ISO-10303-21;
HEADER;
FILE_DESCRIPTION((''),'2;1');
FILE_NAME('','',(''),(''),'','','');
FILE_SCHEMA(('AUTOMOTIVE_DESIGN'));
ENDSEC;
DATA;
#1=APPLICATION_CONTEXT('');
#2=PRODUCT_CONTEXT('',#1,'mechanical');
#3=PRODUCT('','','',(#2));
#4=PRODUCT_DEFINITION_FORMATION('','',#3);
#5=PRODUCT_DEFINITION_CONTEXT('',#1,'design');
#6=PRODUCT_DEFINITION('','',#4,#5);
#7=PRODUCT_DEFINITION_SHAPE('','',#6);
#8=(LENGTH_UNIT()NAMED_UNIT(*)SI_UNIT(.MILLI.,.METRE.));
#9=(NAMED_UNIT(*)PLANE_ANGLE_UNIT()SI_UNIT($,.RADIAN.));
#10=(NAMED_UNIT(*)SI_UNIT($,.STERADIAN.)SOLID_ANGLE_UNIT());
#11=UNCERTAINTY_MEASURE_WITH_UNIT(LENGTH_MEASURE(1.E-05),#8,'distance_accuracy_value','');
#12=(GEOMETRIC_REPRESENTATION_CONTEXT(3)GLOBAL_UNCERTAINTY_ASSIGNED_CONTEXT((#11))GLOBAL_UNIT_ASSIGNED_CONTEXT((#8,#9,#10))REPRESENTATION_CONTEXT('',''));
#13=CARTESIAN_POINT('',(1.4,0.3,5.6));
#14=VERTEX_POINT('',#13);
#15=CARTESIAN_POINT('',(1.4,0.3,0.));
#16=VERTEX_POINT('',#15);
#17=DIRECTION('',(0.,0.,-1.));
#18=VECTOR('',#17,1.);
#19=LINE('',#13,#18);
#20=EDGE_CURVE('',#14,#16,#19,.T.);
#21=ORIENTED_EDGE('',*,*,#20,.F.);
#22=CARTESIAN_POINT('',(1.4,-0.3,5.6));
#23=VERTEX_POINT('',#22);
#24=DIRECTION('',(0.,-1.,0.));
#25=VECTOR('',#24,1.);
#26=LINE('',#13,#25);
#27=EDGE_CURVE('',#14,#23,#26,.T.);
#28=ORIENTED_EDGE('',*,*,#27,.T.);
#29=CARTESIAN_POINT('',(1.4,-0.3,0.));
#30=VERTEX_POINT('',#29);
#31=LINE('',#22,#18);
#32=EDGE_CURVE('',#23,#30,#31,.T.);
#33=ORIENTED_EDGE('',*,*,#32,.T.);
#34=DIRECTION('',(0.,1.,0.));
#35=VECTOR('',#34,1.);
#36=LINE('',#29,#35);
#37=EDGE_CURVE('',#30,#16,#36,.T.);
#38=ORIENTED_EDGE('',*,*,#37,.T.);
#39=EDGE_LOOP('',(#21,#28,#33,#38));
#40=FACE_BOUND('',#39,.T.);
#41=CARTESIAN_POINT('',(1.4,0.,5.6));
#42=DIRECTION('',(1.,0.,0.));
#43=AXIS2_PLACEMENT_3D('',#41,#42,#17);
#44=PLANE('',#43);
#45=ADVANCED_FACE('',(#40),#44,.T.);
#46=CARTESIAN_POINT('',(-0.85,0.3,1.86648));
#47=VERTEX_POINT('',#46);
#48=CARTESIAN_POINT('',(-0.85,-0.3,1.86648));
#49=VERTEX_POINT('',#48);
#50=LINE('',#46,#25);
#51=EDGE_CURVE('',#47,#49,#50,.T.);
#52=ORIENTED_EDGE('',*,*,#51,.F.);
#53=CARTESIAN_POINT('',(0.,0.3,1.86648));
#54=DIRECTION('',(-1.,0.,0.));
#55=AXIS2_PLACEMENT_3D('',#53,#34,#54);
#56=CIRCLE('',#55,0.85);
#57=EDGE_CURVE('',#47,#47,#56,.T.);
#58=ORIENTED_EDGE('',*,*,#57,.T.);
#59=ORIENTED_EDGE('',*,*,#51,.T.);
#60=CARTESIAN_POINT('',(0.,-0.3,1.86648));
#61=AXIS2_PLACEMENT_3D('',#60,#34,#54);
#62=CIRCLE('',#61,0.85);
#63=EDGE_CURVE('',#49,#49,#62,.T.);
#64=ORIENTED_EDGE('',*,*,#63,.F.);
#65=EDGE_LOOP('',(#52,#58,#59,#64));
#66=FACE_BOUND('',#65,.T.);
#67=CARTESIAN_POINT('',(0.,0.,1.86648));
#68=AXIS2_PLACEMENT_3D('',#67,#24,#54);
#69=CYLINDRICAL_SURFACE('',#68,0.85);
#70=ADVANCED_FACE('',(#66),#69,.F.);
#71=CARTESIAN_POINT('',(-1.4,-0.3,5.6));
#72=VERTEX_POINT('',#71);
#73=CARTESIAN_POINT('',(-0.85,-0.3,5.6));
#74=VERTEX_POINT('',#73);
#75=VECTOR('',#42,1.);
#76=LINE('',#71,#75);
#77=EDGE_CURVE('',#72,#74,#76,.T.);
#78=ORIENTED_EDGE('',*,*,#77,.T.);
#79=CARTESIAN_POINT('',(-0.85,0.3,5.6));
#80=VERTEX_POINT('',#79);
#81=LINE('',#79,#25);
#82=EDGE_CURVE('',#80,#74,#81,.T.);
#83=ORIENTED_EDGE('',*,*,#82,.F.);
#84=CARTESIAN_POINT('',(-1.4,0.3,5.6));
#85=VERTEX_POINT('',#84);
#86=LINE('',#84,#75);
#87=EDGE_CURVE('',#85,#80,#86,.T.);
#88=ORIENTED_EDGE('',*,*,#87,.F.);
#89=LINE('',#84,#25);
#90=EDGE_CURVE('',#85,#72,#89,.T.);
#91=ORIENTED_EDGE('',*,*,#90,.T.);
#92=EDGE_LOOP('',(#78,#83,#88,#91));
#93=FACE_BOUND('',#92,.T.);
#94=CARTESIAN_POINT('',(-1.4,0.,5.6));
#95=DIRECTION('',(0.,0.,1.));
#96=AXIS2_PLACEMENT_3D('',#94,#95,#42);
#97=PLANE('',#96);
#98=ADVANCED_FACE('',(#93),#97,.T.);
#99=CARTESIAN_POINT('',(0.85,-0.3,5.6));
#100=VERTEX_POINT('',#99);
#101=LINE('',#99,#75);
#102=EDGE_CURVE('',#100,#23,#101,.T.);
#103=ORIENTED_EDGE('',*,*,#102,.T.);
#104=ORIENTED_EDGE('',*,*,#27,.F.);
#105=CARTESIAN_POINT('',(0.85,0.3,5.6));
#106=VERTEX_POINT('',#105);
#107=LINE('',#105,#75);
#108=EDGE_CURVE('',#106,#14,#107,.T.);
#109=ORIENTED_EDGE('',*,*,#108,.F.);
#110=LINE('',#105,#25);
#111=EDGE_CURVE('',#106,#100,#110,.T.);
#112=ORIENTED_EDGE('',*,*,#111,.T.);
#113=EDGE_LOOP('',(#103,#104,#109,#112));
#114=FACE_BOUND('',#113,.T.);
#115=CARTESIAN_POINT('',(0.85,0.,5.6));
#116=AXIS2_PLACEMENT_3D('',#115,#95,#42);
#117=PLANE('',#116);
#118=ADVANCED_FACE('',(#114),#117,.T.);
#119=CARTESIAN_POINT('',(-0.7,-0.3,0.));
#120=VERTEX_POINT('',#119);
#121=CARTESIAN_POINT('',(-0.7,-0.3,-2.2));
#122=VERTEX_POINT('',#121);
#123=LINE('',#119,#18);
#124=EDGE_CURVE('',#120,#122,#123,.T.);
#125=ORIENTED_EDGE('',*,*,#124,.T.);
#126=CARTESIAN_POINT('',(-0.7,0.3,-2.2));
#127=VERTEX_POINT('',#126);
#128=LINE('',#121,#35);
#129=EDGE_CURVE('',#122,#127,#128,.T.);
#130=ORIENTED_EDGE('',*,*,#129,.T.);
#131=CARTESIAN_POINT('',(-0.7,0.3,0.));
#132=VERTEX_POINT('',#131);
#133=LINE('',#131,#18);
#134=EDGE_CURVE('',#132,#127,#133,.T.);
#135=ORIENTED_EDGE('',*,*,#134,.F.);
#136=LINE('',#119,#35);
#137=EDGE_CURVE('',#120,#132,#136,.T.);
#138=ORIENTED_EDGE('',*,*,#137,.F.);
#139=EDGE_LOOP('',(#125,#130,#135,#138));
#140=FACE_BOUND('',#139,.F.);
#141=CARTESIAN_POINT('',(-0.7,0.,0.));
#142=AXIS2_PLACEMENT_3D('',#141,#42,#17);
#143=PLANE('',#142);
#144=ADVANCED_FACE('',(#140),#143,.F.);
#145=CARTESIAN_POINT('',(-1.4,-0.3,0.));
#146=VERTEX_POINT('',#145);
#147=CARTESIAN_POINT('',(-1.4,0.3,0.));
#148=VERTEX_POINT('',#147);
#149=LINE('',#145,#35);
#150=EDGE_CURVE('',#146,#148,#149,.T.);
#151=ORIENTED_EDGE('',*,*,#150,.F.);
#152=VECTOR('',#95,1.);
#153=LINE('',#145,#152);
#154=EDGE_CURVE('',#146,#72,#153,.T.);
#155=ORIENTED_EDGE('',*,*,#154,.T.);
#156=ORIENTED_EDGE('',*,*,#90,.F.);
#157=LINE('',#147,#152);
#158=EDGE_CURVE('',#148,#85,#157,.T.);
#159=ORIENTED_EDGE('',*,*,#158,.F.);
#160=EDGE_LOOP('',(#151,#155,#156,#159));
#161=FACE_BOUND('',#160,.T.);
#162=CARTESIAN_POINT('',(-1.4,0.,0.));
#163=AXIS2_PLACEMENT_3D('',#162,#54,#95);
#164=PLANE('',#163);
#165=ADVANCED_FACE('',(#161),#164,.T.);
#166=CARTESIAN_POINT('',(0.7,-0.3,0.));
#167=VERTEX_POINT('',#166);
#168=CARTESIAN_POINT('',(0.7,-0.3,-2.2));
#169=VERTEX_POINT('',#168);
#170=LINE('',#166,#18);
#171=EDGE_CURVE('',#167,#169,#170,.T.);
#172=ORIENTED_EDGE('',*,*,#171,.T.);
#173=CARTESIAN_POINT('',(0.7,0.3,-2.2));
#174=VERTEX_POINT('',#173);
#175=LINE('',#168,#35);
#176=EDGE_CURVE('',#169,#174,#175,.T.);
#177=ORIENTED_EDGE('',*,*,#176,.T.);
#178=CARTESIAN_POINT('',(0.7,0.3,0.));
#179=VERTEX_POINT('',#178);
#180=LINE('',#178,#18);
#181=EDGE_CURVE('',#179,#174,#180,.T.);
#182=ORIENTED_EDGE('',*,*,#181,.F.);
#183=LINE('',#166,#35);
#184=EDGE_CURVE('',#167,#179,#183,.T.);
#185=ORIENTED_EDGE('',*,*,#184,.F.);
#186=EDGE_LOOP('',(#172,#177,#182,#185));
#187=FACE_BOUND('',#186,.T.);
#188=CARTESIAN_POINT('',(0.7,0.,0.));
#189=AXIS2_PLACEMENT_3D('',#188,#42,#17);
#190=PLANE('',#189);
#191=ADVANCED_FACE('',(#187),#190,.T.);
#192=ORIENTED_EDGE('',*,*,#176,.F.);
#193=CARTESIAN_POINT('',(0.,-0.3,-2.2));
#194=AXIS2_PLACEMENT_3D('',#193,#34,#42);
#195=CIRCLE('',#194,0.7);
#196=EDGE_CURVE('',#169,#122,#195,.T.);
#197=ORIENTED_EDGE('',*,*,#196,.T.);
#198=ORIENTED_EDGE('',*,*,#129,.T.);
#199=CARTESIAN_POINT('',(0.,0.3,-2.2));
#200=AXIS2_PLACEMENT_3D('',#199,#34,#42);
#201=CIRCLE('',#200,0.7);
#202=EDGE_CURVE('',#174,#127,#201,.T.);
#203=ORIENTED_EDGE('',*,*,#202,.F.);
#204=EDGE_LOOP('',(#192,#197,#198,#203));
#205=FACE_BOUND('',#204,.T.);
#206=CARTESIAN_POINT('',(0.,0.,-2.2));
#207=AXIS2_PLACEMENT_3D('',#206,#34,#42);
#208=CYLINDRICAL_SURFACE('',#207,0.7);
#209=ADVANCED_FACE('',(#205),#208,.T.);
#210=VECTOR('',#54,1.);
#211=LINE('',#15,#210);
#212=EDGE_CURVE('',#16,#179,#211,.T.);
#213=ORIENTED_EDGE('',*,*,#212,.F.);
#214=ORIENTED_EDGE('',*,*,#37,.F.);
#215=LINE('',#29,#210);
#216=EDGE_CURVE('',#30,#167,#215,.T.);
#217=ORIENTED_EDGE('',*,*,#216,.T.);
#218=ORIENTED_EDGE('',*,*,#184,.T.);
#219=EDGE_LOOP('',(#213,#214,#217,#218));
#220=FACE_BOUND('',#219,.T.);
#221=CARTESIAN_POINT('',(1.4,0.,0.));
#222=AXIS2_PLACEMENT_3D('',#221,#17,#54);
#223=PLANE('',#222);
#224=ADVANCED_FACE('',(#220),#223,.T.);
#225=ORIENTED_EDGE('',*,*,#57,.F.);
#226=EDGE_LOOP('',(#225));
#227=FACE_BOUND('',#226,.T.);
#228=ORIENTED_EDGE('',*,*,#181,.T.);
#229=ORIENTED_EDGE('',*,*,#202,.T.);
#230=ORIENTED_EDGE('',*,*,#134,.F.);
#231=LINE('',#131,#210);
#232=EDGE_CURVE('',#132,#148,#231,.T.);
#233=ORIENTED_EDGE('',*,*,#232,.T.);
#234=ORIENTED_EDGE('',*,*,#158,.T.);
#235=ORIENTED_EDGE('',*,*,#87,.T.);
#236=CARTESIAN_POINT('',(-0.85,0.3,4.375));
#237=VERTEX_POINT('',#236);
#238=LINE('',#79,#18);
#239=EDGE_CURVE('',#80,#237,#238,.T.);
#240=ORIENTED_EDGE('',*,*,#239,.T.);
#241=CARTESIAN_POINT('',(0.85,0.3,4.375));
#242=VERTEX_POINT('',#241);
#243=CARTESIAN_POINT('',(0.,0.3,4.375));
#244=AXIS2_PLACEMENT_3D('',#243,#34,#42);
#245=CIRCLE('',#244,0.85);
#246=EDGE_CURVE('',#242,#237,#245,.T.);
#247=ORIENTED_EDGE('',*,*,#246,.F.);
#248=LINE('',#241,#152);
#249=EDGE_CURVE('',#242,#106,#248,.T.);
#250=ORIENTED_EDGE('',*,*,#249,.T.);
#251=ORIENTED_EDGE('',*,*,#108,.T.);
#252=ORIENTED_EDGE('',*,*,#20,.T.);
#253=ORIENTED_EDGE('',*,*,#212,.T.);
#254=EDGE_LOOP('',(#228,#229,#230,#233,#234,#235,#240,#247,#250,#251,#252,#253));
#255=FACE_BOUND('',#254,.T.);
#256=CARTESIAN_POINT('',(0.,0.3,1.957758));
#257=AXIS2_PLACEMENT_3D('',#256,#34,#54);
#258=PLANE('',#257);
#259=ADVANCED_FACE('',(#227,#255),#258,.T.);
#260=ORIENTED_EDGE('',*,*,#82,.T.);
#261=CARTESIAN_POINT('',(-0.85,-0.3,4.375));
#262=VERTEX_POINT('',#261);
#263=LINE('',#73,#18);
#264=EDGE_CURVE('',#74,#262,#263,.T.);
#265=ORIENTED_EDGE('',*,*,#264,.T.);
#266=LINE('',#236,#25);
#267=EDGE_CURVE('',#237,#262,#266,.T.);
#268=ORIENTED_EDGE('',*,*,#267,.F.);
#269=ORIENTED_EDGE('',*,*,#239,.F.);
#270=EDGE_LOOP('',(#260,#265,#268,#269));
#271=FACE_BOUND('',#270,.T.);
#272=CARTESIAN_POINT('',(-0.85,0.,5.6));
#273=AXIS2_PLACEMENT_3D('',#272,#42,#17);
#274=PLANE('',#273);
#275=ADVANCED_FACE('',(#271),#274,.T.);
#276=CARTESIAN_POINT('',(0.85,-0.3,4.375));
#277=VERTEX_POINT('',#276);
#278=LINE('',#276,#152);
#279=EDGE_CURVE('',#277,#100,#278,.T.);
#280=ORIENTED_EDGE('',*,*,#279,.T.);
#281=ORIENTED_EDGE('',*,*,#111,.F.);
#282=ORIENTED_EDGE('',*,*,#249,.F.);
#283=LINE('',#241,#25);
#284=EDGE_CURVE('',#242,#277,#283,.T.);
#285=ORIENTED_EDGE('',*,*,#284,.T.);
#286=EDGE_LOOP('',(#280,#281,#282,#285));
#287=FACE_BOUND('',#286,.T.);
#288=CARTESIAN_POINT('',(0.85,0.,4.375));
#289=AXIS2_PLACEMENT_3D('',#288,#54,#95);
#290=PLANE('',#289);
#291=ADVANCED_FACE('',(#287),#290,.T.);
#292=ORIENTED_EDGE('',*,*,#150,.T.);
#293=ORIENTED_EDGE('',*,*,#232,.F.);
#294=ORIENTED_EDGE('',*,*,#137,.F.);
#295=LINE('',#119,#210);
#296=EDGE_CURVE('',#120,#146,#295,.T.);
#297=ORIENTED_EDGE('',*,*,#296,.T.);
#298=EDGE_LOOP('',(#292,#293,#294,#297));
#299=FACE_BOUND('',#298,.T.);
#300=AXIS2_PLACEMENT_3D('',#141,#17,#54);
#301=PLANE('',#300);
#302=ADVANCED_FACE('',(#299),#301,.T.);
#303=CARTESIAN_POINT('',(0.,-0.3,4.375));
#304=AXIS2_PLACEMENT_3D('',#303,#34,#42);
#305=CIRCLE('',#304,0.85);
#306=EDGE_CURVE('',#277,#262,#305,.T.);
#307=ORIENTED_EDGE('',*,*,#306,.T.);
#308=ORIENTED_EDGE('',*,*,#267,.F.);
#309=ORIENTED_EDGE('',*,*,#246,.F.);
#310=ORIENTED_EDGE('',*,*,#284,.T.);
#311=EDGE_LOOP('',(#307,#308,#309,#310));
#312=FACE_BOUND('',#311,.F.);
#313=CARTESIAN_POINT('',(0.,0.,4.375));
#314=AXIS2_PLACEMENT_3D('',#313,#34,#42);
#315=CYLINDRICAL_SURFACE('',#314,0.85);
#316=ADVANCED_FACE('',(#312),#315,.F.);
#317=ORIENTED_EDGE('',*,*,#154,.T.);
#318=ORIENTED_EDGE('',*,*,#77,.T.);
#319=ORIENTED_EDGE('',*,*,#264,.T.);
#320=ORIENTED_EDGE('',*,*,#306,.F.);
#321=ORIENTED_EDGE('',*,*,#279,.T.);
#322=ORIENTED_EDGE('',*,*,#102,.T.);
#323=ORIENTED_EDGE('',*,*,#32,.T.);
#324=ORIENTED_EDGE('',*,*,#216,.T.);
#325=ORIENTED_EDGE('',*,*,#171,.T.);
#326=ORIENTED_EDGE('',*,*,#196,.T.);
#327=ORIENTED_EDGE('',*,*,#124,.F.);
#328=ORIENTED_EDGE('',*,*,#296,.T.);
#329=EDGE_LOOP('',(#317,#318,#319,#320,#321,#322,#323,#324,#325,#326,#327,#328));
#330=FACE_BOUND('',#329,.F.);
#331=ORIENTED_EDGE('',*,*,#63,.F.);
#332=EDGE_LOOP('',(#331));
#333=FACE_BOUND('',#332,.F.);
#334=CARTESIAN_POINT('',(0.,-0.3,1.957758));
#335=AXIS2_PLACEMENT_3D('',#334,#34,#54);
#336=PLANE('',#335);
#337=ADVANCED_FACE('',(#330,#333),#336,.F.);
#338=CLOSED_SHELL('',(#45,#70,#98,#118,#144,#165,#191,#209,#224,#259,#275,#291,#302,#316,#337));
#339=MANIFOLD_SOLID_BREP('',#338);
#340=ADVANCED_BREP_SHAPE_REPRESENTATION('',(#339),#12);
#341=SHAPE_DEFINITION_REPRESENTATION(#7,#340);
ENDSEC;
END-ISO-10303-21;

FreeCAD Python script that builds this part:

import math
import FreeCAD as App
import Part
import Sketcher

V = App.Vector
Q = App.Units.Quantity

doc = App.newDocument("Part")
body = doc.addObject("PartDesign::Body", "Body")

sketch1 = body.newObject("Sketcher::SketchObject", "Sketch")
sketch1.AttachmentSupport = (doc.getObject("XZ_Plane"), [""])
sketch1.MapMode = "FlatFace"
sketch1.addGeometry([
    Part.LineSegment(V(1.4, 5.6, 0), V(1.4, 0, 0)),
    Part.LineSegment(V(1.4, 0, 0), V(0.7, 0, 0)),
    Part.LineSegment(V(0.7, 0, 0), V(0.7, -2.2, 0)),
    Part.ArcOfCircle(Part.Circle(V(0, -2.2, 0), V(0, 0, 1), 0.7), math.radians(180), math.radians(360)),
    Part.LineSegment(V(-0.7, -2.2, 0), V(-0.7, 0, 0)),
    Part.LineSegment(V(-0.7, 0, 0), V(-1.4, 0, 0)),
    Part.LineSegment(V(-1.4, 0, 0), V(-1.4, 5.6, 0)),
    Part.LineSegment(V(-1.4, 5.6, 0), V(-0.8, 5.6, 0)),
    Part.LineSegment(V(-0.8, 5.6, 0), V(-0.8, 4.4, 0)),
    Part.ArcOfCircle(Part.Circle(V(0, 4.4, 0), V(0, 0, 1), 0.8), math.radians(180), math.radians(360)),
    Part.LineSegment(V(0.8, 4.4, 0), V(0.8, 5.6, 0)),
    Part.LineSegment(V(0.8, 5.6, 0), V(1.4, 5.6, 0)),
    Part.Circle(V(0, 1.9, 0), V(0, 0, 1), 0.8),
], False)
sketch1.addConstraint([
    Sketcher.Constraint("Coincident", 0, 2, 1, 1),
    Sketcher.Constraint("Coincident", 1, 2, 2, 1),
    Sketcher.Constraint("Tangent", 2, 2, 3, 2),
    Sketcher.Constraint("Tangent", 3, 1, 4, 1),
    Sketcher.Constraint("Coincident", 4, 2, 5, 1),
    Sketcher.Constraint("Coincident", 5, 2, 6, 1),
    Sketcher.Constraint("Coincident", 6, 2, 7, 1),
    Sketcher.Constraint("Coincident", 7, 2, 8, 1),
    Sketcher.Constraint("Tangent", 8, 2, 9, 1),
    Sketcher.Constraint("Tangent", 9, 2, 10, 1),
    Sketcher.Constraint("Coincident", 10, 2, 11, 1),
    Sketcher.Constraint("Coincident", 11, 2, 0, 1),
    Sketcher.Constraint("Vertical", 0),
    Sketcher.Constraint("Horizontal", 1),
    Sketcher.Constraint("Vertical", 2),
    Sketcher.Constraint("Vertical", 4),
    Sketcher.Constraint("Horizontal", 5),
    Sketcher.Constraint("Vertical", 6),
    Sketcher.Constraint("Horizontal", 7),
    Sketcher.Constraint("Vertical", 8),
    Sketcher.Constraint("Vertical", 10),
    Sketcher.Constraint("Horizontal", 11),
    Sketcher.Constraint("Equal", 9, 12),
    Sketcher.Constraint("Symmetric", 1, 2, 4, 2, -1, 1),
    Sketcher.Constraint("Symmetric", 0, 2, 5, 2, -2),
    Sketcher.Constraint("Symmetric", 7, 2, 10, 2, -2),
    Sketcher.Constraint("PointOnObject", 12, 3, -2),
    Sketcher.Constraint("Diameter", 12, Q("1.7 mm")),
    Sketcher.Constraint("Radius", 3, Q("0.7 mm")),
    Sketcher.Constraint("DistanceX", 1, 2, 1, 1, Q("0.7 mm")),
    Sketcher.Constraint("DistanceY", 0, 2, 0, 1, Q("5.6 mm")),
    Sketcher.Constraint("DistanceY", 2, 2, 2, 1, Q("2.2 mm")),
    Sketcher.Constraint("DistanceY", 8, 2, 8, 1, Q("1.225 mm")),
    Sketcher.Constraint("DistanceY", -1, 1, 12, 3, Q("1.86648 mm")),
])
pad1 = body.newObject("PartDesign::Pad", "Pad")
pad1.Profile = sketch1
pad1.Length = 0.6
pad1.Midplane = True

doc.recompute()
